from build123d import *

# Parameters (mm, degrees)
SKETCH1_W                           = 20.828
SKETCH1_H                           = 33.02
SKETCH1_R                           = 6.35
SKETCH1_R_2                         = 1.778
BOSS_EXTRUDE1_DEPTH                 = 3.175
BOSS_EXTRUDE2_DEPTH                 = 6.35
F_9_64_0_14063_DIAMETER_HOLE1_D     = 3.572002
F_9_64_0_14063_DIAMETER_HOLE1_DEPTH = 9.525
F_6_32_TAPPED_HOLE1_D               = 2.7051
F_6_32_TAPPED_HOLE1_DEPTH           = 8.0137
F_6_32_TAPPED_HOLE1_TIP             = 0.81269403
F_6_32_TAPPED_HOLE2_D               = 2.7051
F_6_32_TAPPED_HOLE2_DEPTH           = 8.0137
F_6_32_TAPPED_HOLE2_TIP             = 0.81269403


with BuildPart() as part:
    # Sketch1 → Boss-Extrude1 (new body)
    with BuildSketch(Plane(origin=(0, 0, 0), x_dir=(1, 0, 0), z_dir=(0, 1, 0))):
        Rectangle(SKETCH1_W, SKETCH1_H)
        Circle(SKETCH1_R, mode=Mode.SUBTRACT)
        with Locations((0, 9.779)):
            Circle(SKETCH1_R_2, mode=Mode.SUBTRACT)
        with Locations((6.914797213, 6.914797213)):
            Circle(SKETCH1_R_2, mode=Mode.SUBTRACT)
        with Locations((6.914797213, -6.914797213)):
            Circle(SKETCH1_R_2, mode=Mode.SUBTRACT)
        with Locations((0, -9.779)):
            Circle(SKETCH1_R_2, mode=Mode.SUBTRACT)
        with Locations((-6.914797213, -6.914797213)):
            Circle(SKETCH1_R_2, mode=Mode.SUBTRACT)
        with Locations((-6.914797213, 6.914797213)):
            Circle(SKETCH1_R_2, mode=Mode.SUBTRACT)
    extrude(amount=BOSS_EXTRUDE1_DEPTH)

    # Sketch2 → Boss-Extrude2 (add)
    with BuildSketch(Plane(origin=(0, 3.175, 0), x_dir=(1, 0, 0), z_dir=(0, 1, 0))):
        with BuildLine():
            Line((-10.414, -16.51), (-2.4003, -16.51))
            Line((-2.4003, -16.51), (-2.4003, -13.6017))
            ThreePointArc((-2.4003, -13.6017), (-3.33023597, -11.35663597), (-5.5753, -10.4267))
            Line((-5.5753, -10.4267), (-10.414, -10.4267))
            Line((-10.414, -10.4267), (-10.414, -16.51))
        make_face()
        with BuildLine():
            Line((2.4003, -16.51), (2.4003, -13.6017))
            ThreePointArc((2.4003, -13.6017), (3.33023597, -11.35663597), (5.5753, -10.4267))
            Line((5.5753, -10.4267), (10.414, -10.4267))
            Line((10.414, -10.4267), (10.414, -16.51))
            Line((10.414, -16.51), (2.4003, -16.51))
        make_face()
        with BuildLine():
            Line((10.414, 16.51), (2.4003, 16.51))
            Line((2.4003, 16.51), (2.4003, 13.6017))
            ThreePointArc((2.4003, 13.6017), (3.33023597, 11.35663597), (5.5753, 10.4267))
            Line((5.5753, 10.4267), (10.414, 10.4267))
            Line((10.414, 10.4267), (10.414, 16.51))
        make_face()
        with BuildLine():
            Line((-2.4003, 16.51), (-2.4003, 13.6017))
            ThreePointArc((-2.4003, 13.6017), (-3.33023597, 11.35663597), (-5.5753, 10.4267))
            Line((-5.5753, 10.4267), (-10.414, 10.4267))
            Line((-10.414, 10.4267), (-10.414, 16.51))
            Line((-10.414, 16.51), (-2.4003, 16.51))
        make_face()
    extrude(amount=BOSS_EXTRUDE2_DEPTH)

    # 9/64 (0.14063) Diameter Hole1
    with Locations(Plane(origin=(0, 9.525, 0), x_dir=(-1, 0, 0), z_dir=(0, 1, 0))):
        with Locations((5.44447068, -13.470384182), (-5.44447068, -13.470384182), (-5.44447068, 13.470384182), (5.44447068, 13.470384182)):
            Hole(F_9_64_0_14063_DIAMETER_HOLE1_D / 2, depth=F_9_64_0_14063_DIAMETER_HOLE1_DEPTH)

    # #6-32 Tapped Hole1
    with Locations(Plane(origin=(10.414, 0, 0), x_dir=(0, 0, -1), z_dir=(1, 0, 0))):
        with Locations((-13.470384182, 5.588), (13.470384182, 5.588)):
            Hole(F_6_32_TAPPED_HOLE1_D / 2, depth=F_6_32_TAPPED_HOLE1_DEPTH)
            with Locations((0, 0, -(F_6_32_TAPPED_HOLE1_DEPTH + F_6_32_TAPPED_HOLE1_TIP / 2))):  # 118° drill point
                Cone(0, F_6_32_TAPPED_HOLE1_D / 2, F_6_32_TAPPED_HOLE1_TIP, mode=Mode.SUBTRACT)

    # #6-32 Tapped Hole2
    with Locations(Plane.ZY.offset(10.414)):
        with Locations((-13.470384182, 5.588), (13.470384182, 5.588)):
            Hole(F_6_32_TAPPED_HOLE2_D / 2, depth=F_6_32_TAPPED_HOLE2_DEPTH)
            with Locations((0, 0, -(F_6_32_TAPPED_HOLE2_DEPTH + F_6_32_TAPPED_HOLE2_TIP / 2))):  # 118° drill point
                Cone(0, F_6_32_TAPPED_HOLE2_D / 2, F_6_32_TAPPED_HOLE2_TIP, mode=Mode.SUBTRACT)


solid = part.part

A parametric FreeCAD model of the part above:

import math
import FreeCAD as App
import Part
import Sketcher

V = App.Vector
Q = App.Units.Quantity

doc = App.newDocument("Part")
body = doc.addObject("PartDesign::Body", "Body")

# Sketch on XZ plane
sketch1 = body.newObject("Sketcher::SketchObject", "Sketch")
sketch1.AttachmentSupport = (doc.getObject("XZ_Plane"), [""])
sketch1.MapMode = "FlatFace"
sketch1.addGeometry(Part.LineSegment(V(-10.414, -16.51, 0), V(-10.414, 16.51, 0)), False)
sketch1.addGeometry(Part.LineSegment(V(-10.414, 16.51, 0), V(10.414, 16.51, 0)), False)
sketch1.addGeometry(Part.LineSegment(V(10.414, 16.51, 0), V(10.414, -16.51, 0)), False)
sketch1.addGeometry(Part.LineSegment(V(10.414, -16.51, 0), V(-10.414, -16.51, 0)), False)
sketch1.addGeometry(Part.Circle(V(-6.914797, 6.914797, 0), V(0, 0, 1), 1.778), False)
sketch1.addGeometry(Part.Circle(V(0, 9.779, 0), V(0, 0, 1), 1.778), False)
sketch1.addGeometry(Part.Circle(V(6.914797, 6.914797, 0), V(0, 0, 1), 1.778), False)
sketch1.addGeometry(Part.Circle(V(0, 0, 0), V(0, 0, 1), 6.35), False)
sketch1.addGeometry(Part.Circle(V(-6.914797, -6.914797, 0), V(0, 0, 1), 1.778), False)
sketch1.addGeometry(Part.Circle(V(0, -9.779, 0), V(0, 0, 1), 1.778), False)
sketch1.addGeometry(Part.Circle(V(6.914797, -6.914797, 0), V(0, 0, 1), 1.778), False)
sketch1.addConstraint(Sketcher.Constraint("Coincident", 0, 2, 1, 1))
sketch1.addConstraint(Sketcher.Constraint("Coincident", 1, 2, 2, 1))
sketch1.addConstraint(Sketcher.Constraint("Coincident", 2, 2, 3, 1))
sketch1.addConstraint(Sketcher.Constraint("Coincident", 3, 2, 0, 1))
sketch1.addConstraint(Sketcher.Constraint("Vertical", 0))
sketch1.addConstraint(Sketcher.Constraint("Horizontal", 1))
sketch1.addConstraint(Sketcher.Constraint("Vertical", 2))
sketch1.addConstraint(Sketcher.Constraint("Horizontal", 3))
sketch1.addConstraint(Sketcher.Constraint("Coincident", 7, 3, -1, 1))
sketch1.addConstraint(Sketcher.Constraint("Equal", 4, 5))
sketch1.addConstraint(Sketcher.Constraint("Equal", 5, 6))
sketch1.addConstraint(Sketcher.Constraint("Equal", 6, 8))
sketch1.addConstraint(Sketcher.Constraint("Equal", 8, 9))
sketch1.addConstraint(Sketcher.Constraint("Equal", 9, 10))
sketch1.addConstraint(Sketcher.Constraint("Symmetric", 6, 3, 8, 3, -1, 1))
sketch1.addConstraint(Sketcher.Constraint("Symmetric", 5, 3, 9, 3, -1, 1))
sketch1.addConstraint(Sketcher.Constraint("Symmetric", 4, 3, 10, 3, -1, 1))
sketch1.addConstraint(Sketcher.Constraint("Symmetric", 0, 2, 2, 2, -1, 1))
sketch1.addConstraint(Sketcher.Constraint("Symmetric", 4, 3, 6, 3, -2))
sketch1.addConstraint(Sketcher.Constraint("PointOnObject", 5, 3, -2))
sketch1.addConstraint(Sketcher.Constraint("Diameter", 7, Q("0.5 in")))
sketch1.addConstraint(Sketcher.Constraint("Diameter", 4, Q("0.14 in")))
sketch1.addConstraint(Sketcher.Constraint("DistanceY", 0, 1, 0, 2, Q("1.3 in")))
sketch1.addConstraint(Sketcher.Constraint("DistanceX", 1, 1, 1, 2, Q("0.82 in")))
sketch1.addConstraint(Sketcher.Constraint("DistanceY", 9, 3, 5, 3, Q("0.77 in")))
sketch1.addConstraint(Sketcher.Constraint("DistanceX", 4, 3, -1, 1, 6.914797))
sketch1.addConstraint(Sketcher.Constraint("DistanceY", -1, 1, 4, 3, 6.914797))
pad1 = body.newObject("PartDesign::Pad", "Pad")
pad1.Profile = sketch1
pad1.Length = Q("0.125 in")
pad1.Reversed = True

# Sketch on XZ plane
sketch2 = body.newObject("Sketcher::SketchObject", "Sketch001")
sketch2.AttachmentSupport = (doc.getObject("XZ_Plane"), [""])
sketch2.MapMode = "FlatFace"
sketch2.AttachmentOffset = App.Placement(V(0, 0, -0.125 * 25.4), App.Rotation())
sketch2.addGeometry(Part.LineSegment(V(-10.414, 16.51, 0), V(-2.4003, 16.51, 0)), False)
sketch2.addGeometry(Part.LineSegment(V(-2.4003, 16.51, 0), V(-2.4003, 13.6017, 0)), False)
sketch2.addGeometry(Part.ArcOfCircle(Part.Circle(V(-5.5753, 13.6017, 0), V(0, 0, 1), 3.175), math.radians(-90), math.radians(0)), False)
sketch2.addGeometry(Part.LineSegment(V(-5.5753, 10.4267, 0), V(-10.414, 10.4267, 0)), False)
sketch2.addGeometry(Part.LineSegment(V(-10.414, 10.4267, 0), V(-10.414, 16.51, 0)), False)
sketch2.addGeometry(Part.LineSegment(V(2.4003, 13.6017, 0), V(2.4003, 16.51, 0)), False)
sketch2.addGeometry(Part.LineSegment(V(2.4003, 16.51, 0), V(10.414, 16.51, 0)), False)
sketch2.addGeometry(Part.LineSegment(V(10.414, 16.51, 0), V(10.414, 10.4267, 0)), False)
sketch2.addGeometry(Part.LineSegment(V(10.414, 10.4267, 0), V(5.5753, 10.4267, 0)), False)
sketch2.addGeometry(Part.ArcOfCircle(Part.Circle(V(5.5753, 13.6017, 0), V(0, 0, 1), 3.175), math.radians(-180), math.radians(-90)), False)
sketch2.addGeometry(Part.LineSegment(V(10.414, -16.51, 0), V(2.4003, -16.51, 0)), False)
sketch2.addGeometry(Part.LineSegment(V(2.4003, -16.51, 0), V(2.4003, -13.6017, 0)), False)
sketch2.addGeometry(Part.ArcOfCircle(Part.Circle(V(5.5753, -13.6017, 0), V(0, 0, 1), 3.175), math.radians(90), math.radians(180)), False)
sketch2.addGeometry(Part.LineSegment(V(5.5753, -10.4267, 0), V(10.414, -10.4267, 0)), False)
sketch2.addGeometry(Part.LineSegment(V(10.414, -10.4267, 0), V(10.414, -16.51, 0)), False)
sketch2.addGeometry(Part.LineSegment(V(-2.4003, -13.6017, 0), V(-2.4003, -16.51, 0)), False)
sketch2.addGeometry(Part.LineSegment(V(-2.4003, -16.51, 0), V(-10.414, -16.51, 0)), False)
sketch2.addGeometry(Part.LineSegment(V(-10.414, -16.51, 0), V(-10.414, -10.4267, 0)), False)
sketch2.addGeometry(Part.LineSegment(V(-10.414, -10.4267, 0), V(-5.5753, -10.4267, 0)), False)
sketch2.addGeometry(Part.ArcOfCircle(Part.Circle(V(-5.5753, -13.6017, 0), V(0, 0, 1), 3.175), math.radians(0), math.radians(90)), False)
sketch2.addConstraint(Sketcher.Constraint("Coincident", 0, 2, 1, 1))
sketch2.addConstraint(Sketcher.Constraint("Tangent", 1, 2, 2, 2))
sketch2.addConstraint(Sketcher.Constraint("Tangent", 2, 1, 3, 1))
sketch2.addConstraint(Sketcher.Constraint("Coincident", 3, 2, 4, 1))
sketch2.addConstraint(Sketcher.Constraint("Coincident", 4, 2, 0, 1))
sketch2.addConstraint(Sketcher.Constraint("Coincident", 5, 2, 6, 1))
sketch2.addConstraint(Sketcher.Constraint("Coincident", 6, 2, 7, 1))
sketch2.addConstraint(Sketcher.Constraint("Coincident", 7, 2, 8, 1))
sketch2.addConstraint(Sketcher.Constraint("Tangent", 8, 2, 9, 2))
sketch2.addConstraint(Sketcher.Constraint("Tangent", 9, 1, 5, 1))
sketch2.addConstraint(Sketcher.Constraint("Coincident", 10, 2, 11, 1))
sketch2.addConstraint(Sketcher.Constraint("Tangent", 11, 2, 12, 2))
sketch2.addConstraint(Sketcher.Constraint("Tangent", 12, 1, 13, 1))
sketch2.addConstraint(Sketcher.Constraint("Coincident", 13, 2, 14, 1))
sketch2.addConstraint(Sketcher.Constraint("Coincident", 14, 2, 10, 1))
sketch2.addConstraint(Sketcher.Constraint("Coincident", 15, 2, 16, 1))
sketch2.addConstraint(Sketcher.Constraint("Coincident", 16, 2, 17, 1))
sketch2.addConstraint(Sketcher.Constraint("Coincident", 17, 2, 18, 1))
sketch2.addConstraint(Sketcher.Constraint("Tangent", 18, 2, 19, 2))
sketch2.addConstraint(Sketcher.Constraint("Tangent", 19, 1, 15, 1))
sketch2.addConstraint(Sketcher.Constraint("Horizontal", 0))
sketch2.addConstraint(Sketcher.Constraint("Vertical", 1))
sketch2.addConstraint(Sketcher.Constraint("Horizontal", 3))
sketch2.addConstraint(Sketcher.Constraint("Vertical", 4))
sketch2.addConstraint(Sketcher.Constraint("Vertical", 5))
sketch2.addConstraint(Sketcher.Constraint("Horizontal", 6))
sketch2.addConstraint(Sketcher.Constraint("Vertical", 7))
sketch2.addConstraint(Sketcher.Constraint("Horizontal", 8))
sketch2.addConstraint(Sketcher.Constraint("Horizontal", 10))
sketch2.addConstraint(Sketcher.Constraint("Vertical", 11))
sketch2.addConstraint(Sketcher.Constraint("Horizontal", 13))
sketch2.addConstraint(Sketcher.Constraint("Vertical", 14))
sketch2.addConstraint(Sketcher.Constraint("Vertical", 15))
sketch2.addConstraint(Sketcher.Constraint("Horizontal", 16))
sketch2.addConstraint(Sketcher.Constraint("Vertical", 17))
sketch2.addConstraint(Sketcher.Constraint("Horizontal", 18))
sketch2.addConstraint(Sketcher.Constraint("Equal", 2, 9))
sketch2.addConstraint(Sketcher.Constraint("Equal", 9, 12))
sketch2.addConstraint(Sketcher.Constraint("Equal", 12, 19))
sketch2.addConstraint(Sketcher.Constraint("Symmetric", 2, 3, 12, 3, -1, 1))
sketch2.addConstraint(Sketcher.Constraint("Symmetric", 9, 3, 19, 3, -1, 1))
sketch2.addConstraint(Sketcher.Constraint("Symmetric", 4, 2, 14, 2, -1, 1))
sketch2.addConstraint(Sketcher.Constraint("Symmetric", 6, 2, 16, 2, -1, 1))
sketch2.addConstraint(Sketcher.Constraint("Symmetric", 2, 3, 9, 3, -2))
sketch2.addConstraint(Sketcher.Constraint("Symmetric", 4, 2, 6, 2, -2))
sketch2.addConstraint(Sketcher.Constraint("Radius", 2, Q("0.125 in")))
sketch2.addConstraint(Sketcher.Constraint("DistanceY", -1, 1, 0, 2, Q("0.65 in")))
sketch2.addConstraint(Sketcher.Constraint("DistanceX", 3, 2, -1, 1, Q("0.41 in")))
sketch2.addConstraint(Sketcher.Constraint("DistanceX", 0, 1, 0, 2, Q("0.3155 in")))
sketch2.addConstraint(Sketcher.Constraint("DistanceY", 1, 2, 1, 1, Q("0.1145 in")))
pad2 = body.newObject("PartDesign::Pad", "Pad001")
pad2.Profile = sketch2
pad2.Length = Q("0.25 in")
pad2.Reversed = True

# Sketch on XZ plane
sketch3 = body.newObject("Sketcher::SketchObject", "Sketch002")
sketch3.AttachmentSupport = (doc.getObject("XZ_Plane"), [""])
sketch3.MapMode = "FlatFace"
sketch3.AttachmentOffset = App.Placement(V(0, 0, -0.375 * 25.4), App.Rotation())
sketch3.addGeometry(Part.Circle(V(-5.444471, -13.470384, 0), V(0, 0, 1), 1.786001), False)
sketch3.addGeometry(Part.Circle(V(5.444471, -13.470384, 0), V(0, 0, 1), 1.786001), False)
sketch3.addGeometry(Part.Circle(V(5.444471, 13.470384, 0), V(0, 0, 1), 1.786001), False)
sketch3.addGeometry(Part.Circle(V(-5.444471, 13.470384, 0), V(0, 0, 1), 1.786001), False)
sketch3.addConstraint(Sketcher.Constraint("Equal", 0, 1))
sketch3.addConstraint(Sketcher.Constraint("Equal", 1, 2))
sketch3.addConstraint(Sketcher.Constraint("Equal", 2, 3))
sketch3.addConstraint(Sketcher.Constraint("Symmetric", 0, 3, 2, 3, -1, 1))
sketch3.addConstraint(Sketcher.Constraint("Symmetric", 1, 3, 3, 3, -1, 1))
sketch3.addConstraint(Sketcher.Constraint("Symmetric", 0, 3, 1, 3, -2))
sketch3.addConstraint(Sketcher.Constraint("Diameter", 0, 3.572002))
sketch3.addConstraint(Sketcher.Constraint("DistanceX", 0, 3, -1, 1, 5.444471))
sketch3.addConstraint(Sketcher.Constraint("DistanceY", 1, 3, 2, 3, 26.940768))
doc.recompute()
hole = body.newObject("PartDesign::Hole", "Hole")
hole.Profile = sketch3
hole.ThreadType = "None"
hole.Diameter = 3.572002
hole.DepthType = "Dimension"
hole.Depth = Q("0.375 in")
hole.DrillPoint = "Flat"
hole.Reversed = True

# Sketch on YZ plane
sketch4 = body.newObject("Sketcher::SketchObject", "Sketch003")
sketch4.AttachmentSupport = (doc.getObject("YZ_Plane"), [""])
sketch4.MapMode = "FlatFace"
sketch4.AttachmentOffset = App.Placement(V(0, 0, 0.41 * 25.4), App.Rotation())
sketch4.addGeometry(Part.Circle(V(5.588, 13.470384, 0), V(0, 0, 1), 1.35255), False)
sketch4.addGeometry(Part.Circle(V(5.588, -13.470384, 0), V(0, 0, 1), 1.35255), False)
sketch4.addConstraint(Sketcher.Constraint("Equal", 0, 1))
sketch4.addConstraint(Sketcher.Constraint("Symmetric", 0, 3, 1, 3, -1))
sketch4.addConstraint(Sketcher.Constraint("Diameter", 0, Q("0.1065 in")))
sketch4.addConstraint(Sketcher.Constraint("DistanceX", -1, 1, 0, 3, Q("0.22 in")))
sketch4.addConstraint(Sketcher.Constraint("DistanceY", 1, 3, 0, 3, 26.940768))
doc.recompute()
hole2 = body.newObject("PartDesign::Hole", "Hole001")
hole2.Profile = sketch4
hole2.ThreadType = "None"
hole2.Diameter = Q("0.1065 in")
hole2.DepthType = "Dimension"
hole2.Depth = Q("0.3155 in")
hole2.DrillPoint = "Angled"
hole2.DrillPointAngle = 118

# Sketch on YZ plane
sketch5 = body.newObject("Sketcher::SketchObject", "Sketch004")
sketch5.AttachmentSupport = (doc.getObject("YZ_Plane"), [""])
sketch5.MapMode = "FlatFace"
sketch5.AttachmentOffset = App.Placement(V(0, 0, -0.41 * 25.4), App.Rotation())
sketch5.addGeometry(Part.Circle(V(5.588, -13.470384, 0), V(0, 0, 1), 1.35255), False)
sketch5.addGeometry(Part.Circle(V(5.588, 13.470384, 0), V(0, 0, 1), 1.35255), False)
sketch5.addConstraint(Sketcher.Constraint("Equal", 0, 1))
sketch5.addConstraint(Sketcher.Constraint("Symmetric", 0, 3, 1, 3, -1))
sketch5.addConstraint(Sketcher.Constraint("Diameter", 0, Q("0.1065 in")))
sketch5.addConstraint(Sketcher.Constraint("DistanceX", -1, 1, 0, 3, Q("0.22 in")))
sketch5.addConstraint(Sketcher.Constraint("DistanceY", 0, 3, 1, 3, 26.940768))
doc.recompute()
hole3 = body.newObject("PartDesign::Hole", "Hole002")
hole3.Profile = sketch5
hole3.ThreadType = "None"
hole3.Diameter = Q("0.1065 in")
hole3.DepthType = "Dimension"
hole3.Depth = Q("0.3155 in")
hole3.DrillPoint = "Angled"
hole3.DrillPointAngle = 118
hole3.Reversed = True

doc.recompute()
